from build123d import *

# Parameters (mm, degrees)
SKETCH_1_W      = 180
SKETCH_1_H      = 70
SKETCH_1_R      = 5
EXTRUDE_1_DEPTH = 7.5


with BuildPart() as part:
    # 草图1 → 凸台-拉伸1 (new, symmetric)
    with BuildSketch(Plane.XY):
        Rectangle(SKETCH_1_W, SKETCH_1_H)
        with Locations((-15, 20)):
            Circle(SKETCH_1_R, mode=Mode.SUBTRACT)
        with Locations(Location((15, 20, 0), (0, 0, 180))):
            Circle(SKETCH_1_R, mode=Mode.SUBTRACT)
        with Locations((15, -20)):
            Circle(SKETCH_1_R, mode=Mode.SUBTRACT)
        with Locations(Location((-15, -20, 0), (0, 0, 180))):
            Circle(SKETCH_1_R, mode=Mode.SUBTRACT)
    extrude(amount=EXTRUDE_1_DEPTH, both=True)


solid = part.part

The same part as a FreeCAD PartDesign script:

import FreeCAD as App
import Part
import Sketcher

V = App.Vector
Q = App.Units.Quantity


def add_polygon(sketch, points):
    """Adds a closed chain of lines whose ends are joined by coincident constraints."""
    first, n = sketch.GeometryCount, len(points)
    for a, b in zip(points, points[1:] + points[:1]):
        sketch.addGeometry(Part.LineSegment(App.Vector(*a, 0), App.Vector(*b, 0)), False)
    for i in range(n):
        sketch.addConstraint(Sketcher.Constraint("Coincident", first + i, 2, first + (i + 1) % n, 1))

doc = App.newDocument("Part")
params = doc.addObject("Spreadsheet::Sheet", "Params")
for row, (alias, value) in enumerate([
    ("sketch1_diameter", "10 mm"),
    ("sketch1_width", "180 mm"),
    ("sketch1_height", "70 mm"),
    ("pad1_length", "15 mm"),
], start=1):
    params.set(f"A{row}", alias)
    params.set(f"B{row}", "=" + value)
    params.setAlias(f"B{row}", alias)

body = doc.addObject("PartDesign::Body", "Body")

# Sketch on XY plane
sketch1 = body.newObject("Sketcher::SketchObject", "Sketch")
sketch1.AttachmentSupport = (doc.getObject("XY_Plane"), [""])
sketch1.MapMode = "FlatFace"
add_polygon(sketch1, [(-90, 35), (-90, -35), (90, -35), (90, 35)])  # lines 0-3
sketch1.addGeometry(Part.Circle(V(-15, -20, 0), V(0, 0, 1), 5), False)  # 4
sketch1.addGeometry(Part.Circle(V(15, -20, 0), V(0, 0, 1), 5), False)  # 5
sketch1.addGeometry(Part.Circle(V(-15, 20, 0), V(0, 0, 1), 5), False)  # 6
sketch1.addGeometry(Part.Circle(V(15, 20, 0), V(0, 0, 1), 5), False)  # 7
sketch1.addConstraint([
    Sketcher.Constraint("Vertical", 0),
    Sketcher.Constraint("Horizontal", 1),
    Sketcher.Constraint("Vertical", 2),
    Sketcher.Constraint("Horizontal", 3),
    Sketcher.Constraint("Equal", 4, 5),
    Sketcher.Constraint("Equal", 5, 6),
    Sketcher.Constraint("Equal", 6, 7),
    Sketcher.Constraint("Symmetric", 5, 3, 6, 3, -1, 1),
    Sketcher.Constraint("Symmetric", 4, 3, 7, 3, -1, 1),
    Sketcher.Constraint("Symmetric", 0, 2, 2, 2, -1, 1),
    Sketcher.Constraint("Symmetric", 4, 3, 5, 3, -2),
    Sketcher.Constraint("Diameter", 4, Q("10 mm")),
    Sketcher.Constraint("DistanceX", 1, 1, 1, 2, Q("180 mm")),
    Sketcher.Constraint("DistanceY", 0, 2, 0, 1, Q("70 mm")),
    Sketcher.Constraint("DistanceX", 4, 3, -1, 1, Q("15 mm")),
    Sketcher.Constraint("DistanceY", 4, 3, -1, 1, Q("20 mm")),
])
sketch1.setExpression("Constraints[15]", "Params.sketch1_diameter")
sketch1.setExpression("Constraints[16]", "Params.sketch1_width")
sketch1.setExpression("Constraints[17]", "Params.sketch1_height")
pad1 = body.newObject("PartDesign::Pad", "Pad")
pad1.Profile = sketch1
pad1.setExpression("Length", "Params.pad1_length")
pad1.Midplane = True

doc.recompute()
